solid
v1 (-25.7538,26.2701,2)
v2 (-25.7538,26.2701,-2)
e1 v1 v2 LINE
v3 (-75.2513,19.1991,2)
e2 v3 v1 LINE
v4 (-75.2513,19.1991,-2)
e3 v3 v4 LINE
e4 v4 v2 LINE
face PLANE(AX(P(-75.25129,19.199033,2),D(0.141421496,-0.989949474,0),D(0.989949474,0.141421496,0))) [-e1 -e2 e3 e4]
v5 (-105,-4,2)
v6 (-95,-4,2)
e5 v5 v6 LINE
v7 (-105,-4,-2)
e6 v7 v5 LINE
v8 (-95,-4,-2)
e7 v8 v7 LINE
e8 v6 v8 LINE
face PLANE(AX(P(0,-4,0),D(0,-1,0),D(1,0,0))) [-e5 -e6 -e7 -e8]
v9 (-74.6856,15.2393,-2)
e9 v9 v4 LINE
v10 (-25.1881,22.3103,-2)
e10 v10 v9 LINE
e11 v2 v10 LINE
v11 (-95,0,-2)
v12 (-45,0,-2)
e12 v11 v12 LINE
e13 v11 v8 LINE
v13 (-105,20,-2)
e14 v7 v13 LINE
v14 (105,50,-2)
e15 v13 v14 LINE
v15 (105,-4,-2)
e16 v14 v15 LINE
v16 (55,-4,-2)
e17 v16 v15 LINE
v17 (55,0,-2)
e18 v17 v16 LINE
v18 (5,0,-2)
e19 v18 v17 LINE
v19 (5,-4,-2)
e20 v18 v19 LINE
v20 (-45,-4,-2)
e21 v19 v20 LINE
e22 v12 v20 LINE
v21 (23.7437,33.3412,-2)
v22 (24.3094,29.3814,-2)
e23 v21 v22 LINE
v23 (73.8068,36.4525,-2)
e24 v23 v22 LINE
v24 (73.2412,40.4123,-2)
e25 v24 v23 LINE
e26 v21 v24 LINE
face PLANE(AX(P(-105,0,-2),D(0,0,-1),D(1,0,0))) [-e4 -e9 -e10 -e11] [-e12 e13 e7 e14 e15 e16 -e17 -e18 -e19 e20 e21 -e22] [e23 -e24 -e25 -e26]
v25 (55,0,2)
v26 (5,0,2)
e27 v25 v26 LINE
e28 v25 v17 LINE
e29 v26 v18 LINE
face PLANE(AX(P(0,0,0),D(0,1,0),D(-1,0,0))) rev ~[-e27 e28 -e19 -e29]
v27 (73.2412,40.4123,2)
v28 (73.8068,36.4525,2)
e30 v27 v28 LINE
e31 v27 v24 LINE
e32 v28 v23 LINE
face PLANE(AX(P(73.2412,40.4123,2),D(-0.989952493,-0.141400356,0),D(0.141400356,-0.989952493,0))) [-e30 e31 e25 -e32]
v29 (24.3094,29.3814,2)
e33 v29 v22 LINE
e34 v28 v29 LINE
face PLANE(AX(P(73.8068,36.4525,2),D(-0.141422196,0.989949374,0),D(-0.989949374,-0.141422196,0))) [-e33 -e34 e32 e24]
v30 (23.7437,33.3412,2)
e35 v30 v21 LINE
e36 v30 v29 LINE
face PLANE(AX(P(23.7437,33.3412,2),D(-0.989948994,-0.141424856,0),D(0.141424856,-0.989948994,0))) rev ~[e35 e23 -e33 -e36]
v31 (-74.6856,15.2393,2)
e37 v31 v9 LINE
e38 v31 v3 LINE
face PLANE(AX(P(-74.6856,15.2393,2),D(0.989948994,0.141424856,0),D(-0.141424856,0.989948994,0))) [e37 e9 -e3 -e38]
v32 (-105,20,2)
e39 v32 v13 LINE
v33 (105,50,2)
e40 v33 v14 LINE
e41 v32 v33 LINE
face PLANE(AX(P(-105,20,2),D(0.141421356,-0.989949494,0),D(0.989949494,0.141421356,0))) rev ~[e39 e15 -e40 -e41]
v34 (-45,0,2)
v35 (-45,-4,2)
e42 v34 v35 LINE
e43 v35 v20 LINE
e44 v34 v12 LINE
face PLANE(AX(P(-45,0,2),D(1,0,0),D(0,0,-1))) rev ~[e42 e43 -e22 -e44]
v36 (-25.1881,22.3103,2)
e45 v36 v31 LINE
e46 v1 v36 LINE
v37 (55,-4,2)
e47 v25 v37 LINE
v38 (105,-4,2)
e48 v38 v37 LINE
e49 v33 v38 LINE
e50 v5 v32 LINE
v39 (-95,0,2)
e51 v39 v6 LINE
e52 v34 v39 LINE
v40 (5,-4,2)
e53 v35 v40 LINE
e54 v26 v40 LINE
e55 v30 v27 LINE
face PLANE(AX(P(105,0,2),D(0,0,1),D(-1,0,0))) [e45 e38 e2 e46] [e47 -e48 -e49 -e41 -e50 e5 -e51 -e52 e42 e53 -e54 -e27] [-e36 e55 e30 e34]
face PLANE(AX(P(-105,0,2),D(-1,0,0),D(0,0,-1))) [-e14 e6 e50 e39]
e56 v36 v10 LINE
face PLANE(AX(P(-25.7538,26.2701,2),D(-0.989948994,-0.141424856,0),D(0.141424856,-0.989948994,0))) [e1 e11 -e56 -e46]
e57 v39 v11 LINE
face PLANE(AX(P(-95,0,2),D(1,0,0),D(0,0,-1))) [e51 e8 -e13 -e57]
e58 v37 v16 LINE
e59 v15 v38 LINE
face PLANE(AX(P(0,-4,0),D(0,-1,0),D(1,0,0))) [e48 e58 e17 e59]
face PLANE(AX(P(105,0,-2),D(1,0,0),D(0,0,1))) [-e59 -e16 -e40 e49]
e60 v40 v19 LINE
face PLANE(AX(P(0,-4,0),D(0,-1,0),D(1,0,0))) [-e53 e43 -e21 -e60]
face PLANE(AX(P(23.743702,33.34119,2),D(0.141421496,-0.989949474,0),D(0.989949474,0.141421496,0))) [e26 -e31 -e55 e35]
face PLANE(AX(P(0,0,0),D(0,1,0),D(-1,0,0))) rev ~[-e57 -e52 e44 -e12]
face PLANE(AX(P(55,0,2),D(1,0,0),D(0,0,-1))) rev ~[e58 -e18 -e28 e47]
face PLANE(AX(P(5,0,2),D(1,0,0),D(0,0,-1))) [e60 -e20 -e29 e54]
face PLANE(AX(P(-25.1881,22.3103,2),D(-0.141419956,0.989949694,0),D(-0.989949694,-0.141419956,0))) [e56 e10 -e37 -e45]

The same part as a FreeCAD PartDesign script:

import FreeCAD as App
import Part
import Sketcher
from FreeCAD import Vector
Q = App.Units.Quantity

doc = App.newDocument("Part")
body = doc.addObject("PartDesign::Body", "Body")

sketch1 = body.newObject("Sketcher::SketchObject", "Sketch")
sketch1.AttachmentSupport = (doc.getObject("XZ_Plane"), [""])
sketch1.MapMode = "FlatFace"
sketch1.addGeometry([
    Part.LineSegment(Vector(105, -2, 0), Vector(-105, -2, 0)),
    Part.LineSegment(Vector(-105, -2, 0), Vector(-105, 2, 0)),
    Part.LineSegment(Vector(-105, 2, 0), Vector(105, 2, 0)),
    Part.LineSegment(Vector(105, 2, 0), Vector(105, -2, 0)),
], False)
sketch1.addConstraint([
    Sketcher.Constraint("Coincident", 0, 2, 1, 1),
    Sketcher.Constraint("Coincident", 1, 2, 2, 1),
    Sketcher.Constraint("Coincident", 2, 2, 3, 1),
    Sketcher.Constraint("Coincident", 3, 2, 0, 1),
    Sketcher.Constraint("Horizontal", 0),
    Sketcher.Constraint("Vertical", 1),
    Sketcher.Constraint("Horizontal", 2),
    Sketcher.Constraint("Vertical", 3),
    Sketcher.Constraint("Symmetric", 0, 2, 2, 2, -1, 1),
    Sketcher.Constraint("DistanceX", 0, 2, 0, 1, 210.0),
    Sketcher.Constraint("DistanceY", 1, 1, 1, 2, 4.0),
])
pad1 = body.newObject("PartDesign::Pad", "Pad")
pad1.Profile = sketch1
pad1.Length = 100
pad1.Reversed = True

sketch2 = body.newObject("Sketcher::SketchObject", "Sketch001")
sketch2.AttachmentSupport = (doc.getObject("XY_Plane"), [""])
sketch2.MapMode = "FlatFace"
sketch2.AttachmentOffset = App.Placement(Vector(0, 0, 2), App.Rotation())
sketch2.addGeometry([
    Part.LineSegment(Vector(-105, 100, 0), Vector(-105, 20, 0)),
    Part.LineSegment(Vector(-105, 20, 0), Vector(105, 50, 0)),
    Part.LineSegment(Vector(105, 50, 0), Vector(105, 100, 0)),
    Part.LineSegment(Vector(105, 100, 0), Vector(-105, 100, 0)),
], False)
sketch2.addConstraint([
    Sketcher.Constraint("Coincident", 0, 2, 1, 1),
    Sketcher.Constraint("Coincident", 1, 2, 2, 1),
    Sketcher.Constraint("Coincident", 2, 2, 3, 1),
    Sketcher.Constraint("Coincident", 3, 2, 0, 1),
    Sketcher.Constraint("Vertical", 0),
    Sketcher.Constraint("Vertical", 2),
    Sketcher.Constraint("Horizontal", 3),
    Sketcher.Constraint("DistanceY", -1, 1, 0, 2, 20.0),
    Sketcher.Constraint("DistanceY", 0, 2, 1, 2, 30.0),
    Sketcher.Constraint("DistanceX", 3, 2, 3, 1, 210.0),
    Sketcher.Constraint("DistanceY", 0, 2, 0, 1, 80.0),
    Sketcher.Constraint("DistanceX", 0, 2, -1, 1, 105.0),
])
pocket1 = body.newObject("PartDesign::Pocket", "Pocket")
pocket1.Profile = sketch2
pocket1.Type = "UpToFirst"

sketch3 = body.newObject("Sketcher::SketchObject", "Sketch002")
sketch3.AttachmentSupport = (doc.getObject("XZ_Plane"), [""])
sketch3.MapMode = "FlatFace"
sketch3.addGeometry([
    Part.LineSegment(Vector(105, -2, 0), Vector(105, 2, 0)),
    Part.LineSegment(Vector(105, 2, 0), Vector(55, 2, 0)),
    Part.LineSegment(Vector(55, 2, 0), Vector(55, -2, 0)),
    Part.LineSegment(Vector(55, -2, 0), Vector(105, -2, 0)),
    Part.LineSegment(Vector(5, -2, 0), Vector(5, 2, 0)),
    Part.LineSegment(Vector(5, 2, 0), Vector(-45, 2, 0)),
    Part.LineSegment(Vector(-45, 2, 0), Vector(-45, -2, 0)),
    Part.LineSegment(Vector(-45, -2, 0), Vector(5, -2, 0)),
    Part.LineSegment(Vector(-95, -2, 0), Vector(-95, 2, 0)),
    Part.LineSegment(Vector(-95, 2, 0), Vector(-105, 2, 0)),
    Part.LineSegment(Vector(-105, 2, 0), Vector(-105, -2, 0)),
    Part.LineSegment(Vector(-105, -2, 0), Vector(-95, -2, 0)),
], False)
sketch3.addConstraint([
    Sketcher.Constraint("Coincident", 0, 2, 1, 1),
    Sketcher.Constraint("Coincident", 1, 2, 2, 1),
    Sketcher.Constraint("Coincident", 2, 2, 3, 1),
    Sketcher.Constraint("Coincident", 3, 2, 0, 1),
    Sketcher.Constraint("Coincident", 4, 2, 5, 1),
    Sketcher.Constraint("Coincident", 5, 2, 6, 1),
    Sketcher.Constraint("Coincident", 6, 2, 7, 1),
    Sketcher.Constraint("Coincident", 7, 2, 4, 1),
    Sketcher.Constraint("Coincident", 8, 2, 9, 1),
    Sketcher.Constraint("Coincident", 9, 2, 10, 1),
    Sketcher.Constraint("Coincident", 10, 2, 11, 1),
    Sketcher.Constraint("Coincident", 11, 2, 8, 1),
    Sketcher.Constraint("Vertical", 0),
    Sketcher.Constraint("Horizontal", 1),
    Sketcher.Constraint("Vertical", 2),
    Sketcher.Constraint("Horizontal", 3),
    Sketcher.Constraint("Vertical", 4),
    Sketcher.Constraint("Horizontal", 5),
    Sketcher.Constraint("Vertical", 6),
    Sketcher.Constraint("Horizontal", 7),
    Sketcher.Constraint("Vertical", 8),
    Sketcher.Constraint("Horizontal", 9),
    Sketcher.Constraint("Vertical", 10),
    Sketcher.Constraint("Horizontal", 11),
    Sketcher.Constraint("Symmetric", 3, 2, 9, 2, -1, 1),
    Sketcher.Constraint("Horizontal", 1, 2, 4, 2),
    Sketcher.Constraint("Horizontal", 3, 2, 6, 2),
    Sketcher.Constraint("Horizontal", 5, 2, 8, 2),
    Sketcher.Constraint("Horizontal", 7, 2, 10, 2),
    Sketcher.Constraint("Equal", 3, 5),
    Sketcher.Constraint("DistanceX", 1, 2, 1, 1, 50.0),
    Sketcher.Constraint("DistanceX", 9, 2, 9, 1, 10.0),
    Sketcher.Constraint("DistanceY", 0, 1, 0, 2, 4.0),
    Sketcher.Constraint("DistanceX", 4, 2, 1, 2, 50.0),
    Sketcher.Constraint("DistanceX", 8, 2, 5, 2, 50.0),
])
pad2 = body.newObject("PartDesign::Pad", "Pad001")
pad2.Profile = sketch3
pad2.Length = 4

sketch4 = body.newObject("Sketcher::SketchObject", "Sketch003")
sketch4.AttachmentSupport = (doc.getObject("XY_Plane"), [""])
sketch4.MapMode = "FlatFace"
sketch4.AttachmentOffset = App.Placement(Vector(0, 0, 2), App.Rotation())
sketch4.addGeometry([
    Part.LineSegment(Vector(-25.8, 26.3, 0), Vector(-75.3, 19.2, 0)),
    Part.LineSegment(Vector(-75.3, 19.2, 0), Vector(-74.7, 15.2, 0)),
    Part.LineSegment(Vector(-74.7, 15.2, 0), Vector(-25.2, 22.3, 0)),
    Part.LineSegment(Vector(-25.2, 22.3, 0), Vector(-25.8, 26.3, 0)),
    Part.LineSegment(Vector(73.2, 40.4, 0), Vector(23.7, 33.3, 0)),
    Part.LineSegment(Vector(23.7, 33.3, 0), Vector(24.3, 29.4, 0)),
    Part.LineSegment(Vector(24.3, 29.4, 0), Vector(73.8, 36.5, 0)),
    Part.LineSegment(Vector(73.8, 36.5, 0), Vector(73.2, 40.4, 0)),
], False)
sketch4.addConstraint([
    Sketcher.Constraint("Coincident", 0, 2, 1, 1),
    Sketcher.Constraint("Coincident", 1, 2, 2, 1),
    Sketcher.Constraint("Coincident", 2, 2, 3, 1),
    Sketcher.Constraint("Coincident", 3, 2, 0, 1),
    Sketcher.Constraint("Coincident", 4, 2, 5, 1),
    Sketcher.Constraint("Coincident", 5, 2, 6, 1),
    Sketcher.Constraint("Coincident", 6, 2, 7, 1),
    Sketcher.Constraint("Coincident", 7, 2, 4, 1),
    Sketcher.Constraint("Perpendicular", 0, 1),
    Sketcher.Constraint("Perpendicular", 1, 2),
    Sketcher.Constraint("Perpendicular", 2, 3),
    Sketcher.Constraint("Perpendicular", 3, 4),
    Sketcher.Constraint("Perpendicular", 4, 5),
    Sketcher.Constraint("Perpendicular", 5, 6),
    Sketcher.Constraint("Perpendicular", 6, 7),
    Sketcher.Constraint("Equal", 2, 4),
    Sketcher.Constraint("Equal", 3, 5),
    Sketcher.Constraint("Distance", 0, 50.0),
    Sketcher.Constraint("Distance", 1, 4.0),
    Sketcher.Constraint("Angle", 0, Q("-171.87 deg")),
    Sketcher.Constraint("DistanceY", -1, 1, 3, 2, 26.27),
    Sketcher.Constraint("DistanceX", 2, 2, -1, 1, 25.188),
    Sketcher.Constraint("DistanceY", 3, 2, 4, 2, 7.071),
    Sketcher.Constraint("DistanceX", 0, 2, 4, 2, 98.995),
])
pocket2 = body.newObject("PartDesign::Pocket", "Pocket001")
pocket2.Profile = sketch4
pocket2.Type = "UpToFirst"

doc.recompute()
